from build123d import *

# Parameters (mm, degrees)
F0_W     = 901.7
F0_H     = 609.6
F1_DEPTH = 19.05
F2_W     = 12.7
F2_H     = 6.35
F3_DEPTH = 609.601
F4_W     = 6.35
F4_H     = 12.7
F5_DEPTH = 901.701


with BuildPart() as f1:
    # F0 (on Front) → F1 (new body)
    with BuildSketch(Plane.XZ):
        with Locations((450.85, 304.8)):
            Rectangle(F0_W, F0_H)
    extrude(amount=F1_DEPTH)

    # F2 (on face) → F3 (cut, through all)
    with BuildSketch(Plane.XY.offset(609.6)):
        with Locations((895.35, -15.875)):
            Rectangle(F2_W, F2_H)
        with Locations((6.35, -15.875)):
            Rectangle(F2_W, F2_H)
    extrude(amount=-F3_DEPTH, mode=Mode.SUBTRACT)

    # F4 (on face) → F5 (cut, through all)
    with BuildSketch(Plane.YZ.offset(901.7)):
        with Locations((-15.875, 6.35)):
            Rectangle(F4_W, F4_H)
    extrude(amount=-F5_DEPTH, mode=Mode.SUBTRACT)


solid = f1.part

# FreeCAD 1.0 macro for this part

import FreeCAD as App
import Part
import Sketcher
from FreeCAD import Vector
Q = App.Units.Quantity

doc = App.newDocument("Part")
body = doc.addObject("PartDesign::Body", "Body")

# Sketch on XZ plane
sketch1 = doc.addObject("Sketcher::SketchObject", "Sketch")
body.addObject(sketch1)
sketch1.AttachmentSupport = (doc.XZ_Plane, [""])
sketch1.MapMode = "FlatFace"
sketch1.addGeometry(Part.LineSegment(Vector(0, 609.6, 0), Vector(0, 0, 0)), False)
sketch1.addGeometry(Part.LineSegment(Vector(0, 0, 0), Vector(901.7, 0, 0)), False)
sketch1.addGeometry(Part.LineSegment(Vector(901.7, 0, 0), Vector(901.7, 609.6, 0)), False)
sketch1.addGeometry(Part.LineSegment(Vector(901.7, 609.6, 0), Vector(0, 609.6, 0)), False)
sketch1.addConstraint(Sketcher.Constraint("Coincident", 0, 2, 1, 1))
sketch1.addConstraint(Sketcher.Constraint("Coincident", 1, 2, 2, 1))
sketch1.addConstraint(Sketcher.Constraint("Coincident", 2, 2, 3, 1))
sketch1.addConstraint(Sketcher.Constraint("Coincident", 3, 2, 0, 1))
sketch1.addConstraint(Sketcher.Constraint("Vertical", 0))
sketch1.addConstraint(Sketcher.Constraint("Horizontal", 1))
sketch1.addConstraint(Sketcher.Constraint("Vertical", 2))
sketch1.addConstraint(Sketcher.Constraint("Horizontal", 3))
sketch1.addConstraint(Sketcher.Constraint("Coincident", 0, 2, -1, 1))
sketch1.addConstraint(Sketcher.Constraint("DistanceY", 0, 2, 0, 1, Q("24 in")))
sketch1.addConstraint(Sketcher.Constraint("DistanceX", 1, 1, 1, 2, Q("35.5 in")))
pad1 = doc.addObject("PartDesign::Pad", "Pad")
body.addObject(pad1)
pad1.Profile = sketch1
pad1.Length = Q("0.75 in")

# Sketch on XY plane
sketch2 = doc.addObject("Sketcher::SketchObject", "Sketch001")
body.addObject(sketch2)
sketch2.AttachmentSupport = (doc.XY_Plane, [""])
sketch2.MapMode = "FlatFace"
sketch2.AttachmentOffset = App.Placement(Vector(0, 0, 24 * 25.4), App.Rotation())
sketch2.addGeometry(Part.LineSegment(Vector(889, -12.7, 0), Vector(889, -19.05, 0)), False)
sketch2.addGeometry(Part.LineSegment(Vector(889, -19.05, 0), Vector(901.7, -19.05, 0)), False)
sketch2.addGeometry(Part.LineSegment(Vector(901.7, -19.05, 0), Vector(901.7, -12.7, 0)), False)
sketch2.addGeometry(Part.LineSegment(Vector(901.7, -12.7, 0), Vector(889, -12.7, 0)), False)
sketch2.addGeometry(Part.LineSegment(Vector(0, -12.7, 0), Vector(0, -19.05, 0)), False)
sketch2.addGeometry(Part.LineSegment(Vector(0, -19.05, 0), Vector(12.7, -19.05, 0)), False)
sketch2.addGeometry(Part.LineSegment(Vector(12.7, -19.05, 0), Vector(12.7, -12.7, 0)), False)
sketch2.addGeometry(Part.LineSegment(Vector(12.7, -12.7, 0), Vector(0, -12.7, 0)), False)
sketch2.addConstraint(Sketcher.Constraint("Coincident", 0, 2, 1, 1))
sketch2.addConstraint(Sketcher.Constraint("Coincident", 1, 2, 2, 1))
sketch2.addConstraint(Sketcher.Constraint("Coincident", 2, 2, 3, 1))
sketch2.addConstraint(Sketcher.Constraint("Coincident", 3, 2, 0, 1))
sketch2.addConstraint(Sketcher.Constraint("Coincident", 4, 2, 5, 1))
sketch2.addConstraint(Sketcher.Constraint("Coincident", 5, 2, 6, 1))
sketch2.addConstraint(Sketcher.Constraint("Coincident", 6, 2, 7, 1))
sketch2.addConstraint(Sketcher.Constraint("Coincident", 7, 2, 4, 1))
sketch2.addConstraint(Sketcher.Constraint("Vertical", 0))
sketch2.addConstraint(Sketcher.Constraint("Horizontal", 1))
sketch2.addConstraint(Sketcher.Constraint("Vertical", 2))
sketch2.addConstraint(Sketcher.Constraint("Horizontal", 3))
sketch2.addConstraint(Sketcher.Constraint("Vertical", 4))
sketch2.addConstraint(Sketcher.Constraint("Horizontal", 5))
sketch2.addConstraint(Sketcher.Constraint("Vertical", 6))
sketch2.addConstraint(Sketcher.Constraint("Horizontal", 7))
sketch2.addConstraint(Sketcher.Constraint("PointOnObject", 4, 2, -2))
sketch2.addConstraint(Sketcher.Constraint("Horizontal", 1, 2, 4, 2))
sketch2.addConstraint(Sketcher.Constraint("Horizontal", 3, 2, 6, 2))
sketch2.addConstraint(Sketcher.Constraint("Equal", 3, 5))
sketch2.addConstraint(Sketcher.Constraint("DistanceX", 1, 1, 1, 2, Q("0.5 in")))
sketch2.addConstraint(Sketcher.Constraint("DistanceX", -1, 1, 0, 2, Q("35 in")))
sketch2.addConstraint(Sketcher.Constraint("DistanceY", 0, 2, 0, 1, Q("0.25 in")))
sketch2.addConstraint(Sketcher.Constraint("DistanceY", 2, 2, -1, 1, Q("0.5 in")))
pocket1 = doc.addObject("PartDesign::Pocket", "Pocket")
body.addObject(pocket1)
pocket1.Profile = sketch2
pocket1.Type = "ThroughAll"

# Sketch on YZ plane
sketch3 = doc.addObject("Sketcher::SketchObject", "Sketch002")
body.addObject(sketch3)
sketch3.AttachmentSupport = (doc.YZ_Plane, [""])
sketch3.MapMode = "FlatFace"
sketch3.AttachmentOffset = App.Placement(Vector(0, 0, 35.5 * 25.4), App.Rotation())
sketch3.addGeometry(Part.LineSegment(Vector(-19.05, 12.7, 0), Vector(-19.05, 0, 0)), False)
sketch3.addGeometry(Part.LineSegment(Vector(-19.05, 0, 0), Vector(-12.7, 0, 0)), False)
sketch3.addGeometry(Part.LineSegment(Vector(-12.7, 0, 0), Vector(-12.7, 12.7, 0)), False)
sketch3.addGeometry(Part.LineSegment(Vector(-12.7, 12.7, 0), Vector(-19.05, 12.7, 0)), False)
sketch3.addConstraint(Sketcher.Constraint("Coincident", 0, 2, 1, 1))
sketch3.addConstraint(Sketcher.Constraint("Coincident", 1, 2, 2, 1))
sketch3.addConstraint(Sketcher.Constraint("Coincident", 2, 2, 3, 1))
sketch3.addConstraint(Sketcher.Constraint("Coincident", 3, 2, 0, 1))
sketch3.addConstraint(Sketcher.Constraint("Vertical", 0))
sketch3.addConstraint(Sketcher.Constraint("Horizontal", 1))
sketch3.addConstraint(Sketcher.Constraint("Vertical", 2))
sketch3.addConstraint(Sketcher.Constraint("Horizontal", 3))
sketch3.addConstraint(Sketcher.Constraint("PointOnObject", 0, 2, -1))
sketch3.addConstraint(Sketcher.Constraint("DistanceY", 0, 2, 0, 1, Q("0.5 in")))
sketch3.addConstraint(Sketcher.Constraint("DistanceX", 1, 1, 1, 2, Q("0.25 in")))
sketch3.addConstraint(Sketcher.Constraint("DistanceX", 1, 2, -1, 1, Q("0.5 in")))
pocket2 = doc.addObject("PartDesign::Pocket", "Pocket001")
body.addObject(pocket2)
pocket2.Profile = sketch3
pocket2.Type = "ThroughAll"

doc.recompute()
